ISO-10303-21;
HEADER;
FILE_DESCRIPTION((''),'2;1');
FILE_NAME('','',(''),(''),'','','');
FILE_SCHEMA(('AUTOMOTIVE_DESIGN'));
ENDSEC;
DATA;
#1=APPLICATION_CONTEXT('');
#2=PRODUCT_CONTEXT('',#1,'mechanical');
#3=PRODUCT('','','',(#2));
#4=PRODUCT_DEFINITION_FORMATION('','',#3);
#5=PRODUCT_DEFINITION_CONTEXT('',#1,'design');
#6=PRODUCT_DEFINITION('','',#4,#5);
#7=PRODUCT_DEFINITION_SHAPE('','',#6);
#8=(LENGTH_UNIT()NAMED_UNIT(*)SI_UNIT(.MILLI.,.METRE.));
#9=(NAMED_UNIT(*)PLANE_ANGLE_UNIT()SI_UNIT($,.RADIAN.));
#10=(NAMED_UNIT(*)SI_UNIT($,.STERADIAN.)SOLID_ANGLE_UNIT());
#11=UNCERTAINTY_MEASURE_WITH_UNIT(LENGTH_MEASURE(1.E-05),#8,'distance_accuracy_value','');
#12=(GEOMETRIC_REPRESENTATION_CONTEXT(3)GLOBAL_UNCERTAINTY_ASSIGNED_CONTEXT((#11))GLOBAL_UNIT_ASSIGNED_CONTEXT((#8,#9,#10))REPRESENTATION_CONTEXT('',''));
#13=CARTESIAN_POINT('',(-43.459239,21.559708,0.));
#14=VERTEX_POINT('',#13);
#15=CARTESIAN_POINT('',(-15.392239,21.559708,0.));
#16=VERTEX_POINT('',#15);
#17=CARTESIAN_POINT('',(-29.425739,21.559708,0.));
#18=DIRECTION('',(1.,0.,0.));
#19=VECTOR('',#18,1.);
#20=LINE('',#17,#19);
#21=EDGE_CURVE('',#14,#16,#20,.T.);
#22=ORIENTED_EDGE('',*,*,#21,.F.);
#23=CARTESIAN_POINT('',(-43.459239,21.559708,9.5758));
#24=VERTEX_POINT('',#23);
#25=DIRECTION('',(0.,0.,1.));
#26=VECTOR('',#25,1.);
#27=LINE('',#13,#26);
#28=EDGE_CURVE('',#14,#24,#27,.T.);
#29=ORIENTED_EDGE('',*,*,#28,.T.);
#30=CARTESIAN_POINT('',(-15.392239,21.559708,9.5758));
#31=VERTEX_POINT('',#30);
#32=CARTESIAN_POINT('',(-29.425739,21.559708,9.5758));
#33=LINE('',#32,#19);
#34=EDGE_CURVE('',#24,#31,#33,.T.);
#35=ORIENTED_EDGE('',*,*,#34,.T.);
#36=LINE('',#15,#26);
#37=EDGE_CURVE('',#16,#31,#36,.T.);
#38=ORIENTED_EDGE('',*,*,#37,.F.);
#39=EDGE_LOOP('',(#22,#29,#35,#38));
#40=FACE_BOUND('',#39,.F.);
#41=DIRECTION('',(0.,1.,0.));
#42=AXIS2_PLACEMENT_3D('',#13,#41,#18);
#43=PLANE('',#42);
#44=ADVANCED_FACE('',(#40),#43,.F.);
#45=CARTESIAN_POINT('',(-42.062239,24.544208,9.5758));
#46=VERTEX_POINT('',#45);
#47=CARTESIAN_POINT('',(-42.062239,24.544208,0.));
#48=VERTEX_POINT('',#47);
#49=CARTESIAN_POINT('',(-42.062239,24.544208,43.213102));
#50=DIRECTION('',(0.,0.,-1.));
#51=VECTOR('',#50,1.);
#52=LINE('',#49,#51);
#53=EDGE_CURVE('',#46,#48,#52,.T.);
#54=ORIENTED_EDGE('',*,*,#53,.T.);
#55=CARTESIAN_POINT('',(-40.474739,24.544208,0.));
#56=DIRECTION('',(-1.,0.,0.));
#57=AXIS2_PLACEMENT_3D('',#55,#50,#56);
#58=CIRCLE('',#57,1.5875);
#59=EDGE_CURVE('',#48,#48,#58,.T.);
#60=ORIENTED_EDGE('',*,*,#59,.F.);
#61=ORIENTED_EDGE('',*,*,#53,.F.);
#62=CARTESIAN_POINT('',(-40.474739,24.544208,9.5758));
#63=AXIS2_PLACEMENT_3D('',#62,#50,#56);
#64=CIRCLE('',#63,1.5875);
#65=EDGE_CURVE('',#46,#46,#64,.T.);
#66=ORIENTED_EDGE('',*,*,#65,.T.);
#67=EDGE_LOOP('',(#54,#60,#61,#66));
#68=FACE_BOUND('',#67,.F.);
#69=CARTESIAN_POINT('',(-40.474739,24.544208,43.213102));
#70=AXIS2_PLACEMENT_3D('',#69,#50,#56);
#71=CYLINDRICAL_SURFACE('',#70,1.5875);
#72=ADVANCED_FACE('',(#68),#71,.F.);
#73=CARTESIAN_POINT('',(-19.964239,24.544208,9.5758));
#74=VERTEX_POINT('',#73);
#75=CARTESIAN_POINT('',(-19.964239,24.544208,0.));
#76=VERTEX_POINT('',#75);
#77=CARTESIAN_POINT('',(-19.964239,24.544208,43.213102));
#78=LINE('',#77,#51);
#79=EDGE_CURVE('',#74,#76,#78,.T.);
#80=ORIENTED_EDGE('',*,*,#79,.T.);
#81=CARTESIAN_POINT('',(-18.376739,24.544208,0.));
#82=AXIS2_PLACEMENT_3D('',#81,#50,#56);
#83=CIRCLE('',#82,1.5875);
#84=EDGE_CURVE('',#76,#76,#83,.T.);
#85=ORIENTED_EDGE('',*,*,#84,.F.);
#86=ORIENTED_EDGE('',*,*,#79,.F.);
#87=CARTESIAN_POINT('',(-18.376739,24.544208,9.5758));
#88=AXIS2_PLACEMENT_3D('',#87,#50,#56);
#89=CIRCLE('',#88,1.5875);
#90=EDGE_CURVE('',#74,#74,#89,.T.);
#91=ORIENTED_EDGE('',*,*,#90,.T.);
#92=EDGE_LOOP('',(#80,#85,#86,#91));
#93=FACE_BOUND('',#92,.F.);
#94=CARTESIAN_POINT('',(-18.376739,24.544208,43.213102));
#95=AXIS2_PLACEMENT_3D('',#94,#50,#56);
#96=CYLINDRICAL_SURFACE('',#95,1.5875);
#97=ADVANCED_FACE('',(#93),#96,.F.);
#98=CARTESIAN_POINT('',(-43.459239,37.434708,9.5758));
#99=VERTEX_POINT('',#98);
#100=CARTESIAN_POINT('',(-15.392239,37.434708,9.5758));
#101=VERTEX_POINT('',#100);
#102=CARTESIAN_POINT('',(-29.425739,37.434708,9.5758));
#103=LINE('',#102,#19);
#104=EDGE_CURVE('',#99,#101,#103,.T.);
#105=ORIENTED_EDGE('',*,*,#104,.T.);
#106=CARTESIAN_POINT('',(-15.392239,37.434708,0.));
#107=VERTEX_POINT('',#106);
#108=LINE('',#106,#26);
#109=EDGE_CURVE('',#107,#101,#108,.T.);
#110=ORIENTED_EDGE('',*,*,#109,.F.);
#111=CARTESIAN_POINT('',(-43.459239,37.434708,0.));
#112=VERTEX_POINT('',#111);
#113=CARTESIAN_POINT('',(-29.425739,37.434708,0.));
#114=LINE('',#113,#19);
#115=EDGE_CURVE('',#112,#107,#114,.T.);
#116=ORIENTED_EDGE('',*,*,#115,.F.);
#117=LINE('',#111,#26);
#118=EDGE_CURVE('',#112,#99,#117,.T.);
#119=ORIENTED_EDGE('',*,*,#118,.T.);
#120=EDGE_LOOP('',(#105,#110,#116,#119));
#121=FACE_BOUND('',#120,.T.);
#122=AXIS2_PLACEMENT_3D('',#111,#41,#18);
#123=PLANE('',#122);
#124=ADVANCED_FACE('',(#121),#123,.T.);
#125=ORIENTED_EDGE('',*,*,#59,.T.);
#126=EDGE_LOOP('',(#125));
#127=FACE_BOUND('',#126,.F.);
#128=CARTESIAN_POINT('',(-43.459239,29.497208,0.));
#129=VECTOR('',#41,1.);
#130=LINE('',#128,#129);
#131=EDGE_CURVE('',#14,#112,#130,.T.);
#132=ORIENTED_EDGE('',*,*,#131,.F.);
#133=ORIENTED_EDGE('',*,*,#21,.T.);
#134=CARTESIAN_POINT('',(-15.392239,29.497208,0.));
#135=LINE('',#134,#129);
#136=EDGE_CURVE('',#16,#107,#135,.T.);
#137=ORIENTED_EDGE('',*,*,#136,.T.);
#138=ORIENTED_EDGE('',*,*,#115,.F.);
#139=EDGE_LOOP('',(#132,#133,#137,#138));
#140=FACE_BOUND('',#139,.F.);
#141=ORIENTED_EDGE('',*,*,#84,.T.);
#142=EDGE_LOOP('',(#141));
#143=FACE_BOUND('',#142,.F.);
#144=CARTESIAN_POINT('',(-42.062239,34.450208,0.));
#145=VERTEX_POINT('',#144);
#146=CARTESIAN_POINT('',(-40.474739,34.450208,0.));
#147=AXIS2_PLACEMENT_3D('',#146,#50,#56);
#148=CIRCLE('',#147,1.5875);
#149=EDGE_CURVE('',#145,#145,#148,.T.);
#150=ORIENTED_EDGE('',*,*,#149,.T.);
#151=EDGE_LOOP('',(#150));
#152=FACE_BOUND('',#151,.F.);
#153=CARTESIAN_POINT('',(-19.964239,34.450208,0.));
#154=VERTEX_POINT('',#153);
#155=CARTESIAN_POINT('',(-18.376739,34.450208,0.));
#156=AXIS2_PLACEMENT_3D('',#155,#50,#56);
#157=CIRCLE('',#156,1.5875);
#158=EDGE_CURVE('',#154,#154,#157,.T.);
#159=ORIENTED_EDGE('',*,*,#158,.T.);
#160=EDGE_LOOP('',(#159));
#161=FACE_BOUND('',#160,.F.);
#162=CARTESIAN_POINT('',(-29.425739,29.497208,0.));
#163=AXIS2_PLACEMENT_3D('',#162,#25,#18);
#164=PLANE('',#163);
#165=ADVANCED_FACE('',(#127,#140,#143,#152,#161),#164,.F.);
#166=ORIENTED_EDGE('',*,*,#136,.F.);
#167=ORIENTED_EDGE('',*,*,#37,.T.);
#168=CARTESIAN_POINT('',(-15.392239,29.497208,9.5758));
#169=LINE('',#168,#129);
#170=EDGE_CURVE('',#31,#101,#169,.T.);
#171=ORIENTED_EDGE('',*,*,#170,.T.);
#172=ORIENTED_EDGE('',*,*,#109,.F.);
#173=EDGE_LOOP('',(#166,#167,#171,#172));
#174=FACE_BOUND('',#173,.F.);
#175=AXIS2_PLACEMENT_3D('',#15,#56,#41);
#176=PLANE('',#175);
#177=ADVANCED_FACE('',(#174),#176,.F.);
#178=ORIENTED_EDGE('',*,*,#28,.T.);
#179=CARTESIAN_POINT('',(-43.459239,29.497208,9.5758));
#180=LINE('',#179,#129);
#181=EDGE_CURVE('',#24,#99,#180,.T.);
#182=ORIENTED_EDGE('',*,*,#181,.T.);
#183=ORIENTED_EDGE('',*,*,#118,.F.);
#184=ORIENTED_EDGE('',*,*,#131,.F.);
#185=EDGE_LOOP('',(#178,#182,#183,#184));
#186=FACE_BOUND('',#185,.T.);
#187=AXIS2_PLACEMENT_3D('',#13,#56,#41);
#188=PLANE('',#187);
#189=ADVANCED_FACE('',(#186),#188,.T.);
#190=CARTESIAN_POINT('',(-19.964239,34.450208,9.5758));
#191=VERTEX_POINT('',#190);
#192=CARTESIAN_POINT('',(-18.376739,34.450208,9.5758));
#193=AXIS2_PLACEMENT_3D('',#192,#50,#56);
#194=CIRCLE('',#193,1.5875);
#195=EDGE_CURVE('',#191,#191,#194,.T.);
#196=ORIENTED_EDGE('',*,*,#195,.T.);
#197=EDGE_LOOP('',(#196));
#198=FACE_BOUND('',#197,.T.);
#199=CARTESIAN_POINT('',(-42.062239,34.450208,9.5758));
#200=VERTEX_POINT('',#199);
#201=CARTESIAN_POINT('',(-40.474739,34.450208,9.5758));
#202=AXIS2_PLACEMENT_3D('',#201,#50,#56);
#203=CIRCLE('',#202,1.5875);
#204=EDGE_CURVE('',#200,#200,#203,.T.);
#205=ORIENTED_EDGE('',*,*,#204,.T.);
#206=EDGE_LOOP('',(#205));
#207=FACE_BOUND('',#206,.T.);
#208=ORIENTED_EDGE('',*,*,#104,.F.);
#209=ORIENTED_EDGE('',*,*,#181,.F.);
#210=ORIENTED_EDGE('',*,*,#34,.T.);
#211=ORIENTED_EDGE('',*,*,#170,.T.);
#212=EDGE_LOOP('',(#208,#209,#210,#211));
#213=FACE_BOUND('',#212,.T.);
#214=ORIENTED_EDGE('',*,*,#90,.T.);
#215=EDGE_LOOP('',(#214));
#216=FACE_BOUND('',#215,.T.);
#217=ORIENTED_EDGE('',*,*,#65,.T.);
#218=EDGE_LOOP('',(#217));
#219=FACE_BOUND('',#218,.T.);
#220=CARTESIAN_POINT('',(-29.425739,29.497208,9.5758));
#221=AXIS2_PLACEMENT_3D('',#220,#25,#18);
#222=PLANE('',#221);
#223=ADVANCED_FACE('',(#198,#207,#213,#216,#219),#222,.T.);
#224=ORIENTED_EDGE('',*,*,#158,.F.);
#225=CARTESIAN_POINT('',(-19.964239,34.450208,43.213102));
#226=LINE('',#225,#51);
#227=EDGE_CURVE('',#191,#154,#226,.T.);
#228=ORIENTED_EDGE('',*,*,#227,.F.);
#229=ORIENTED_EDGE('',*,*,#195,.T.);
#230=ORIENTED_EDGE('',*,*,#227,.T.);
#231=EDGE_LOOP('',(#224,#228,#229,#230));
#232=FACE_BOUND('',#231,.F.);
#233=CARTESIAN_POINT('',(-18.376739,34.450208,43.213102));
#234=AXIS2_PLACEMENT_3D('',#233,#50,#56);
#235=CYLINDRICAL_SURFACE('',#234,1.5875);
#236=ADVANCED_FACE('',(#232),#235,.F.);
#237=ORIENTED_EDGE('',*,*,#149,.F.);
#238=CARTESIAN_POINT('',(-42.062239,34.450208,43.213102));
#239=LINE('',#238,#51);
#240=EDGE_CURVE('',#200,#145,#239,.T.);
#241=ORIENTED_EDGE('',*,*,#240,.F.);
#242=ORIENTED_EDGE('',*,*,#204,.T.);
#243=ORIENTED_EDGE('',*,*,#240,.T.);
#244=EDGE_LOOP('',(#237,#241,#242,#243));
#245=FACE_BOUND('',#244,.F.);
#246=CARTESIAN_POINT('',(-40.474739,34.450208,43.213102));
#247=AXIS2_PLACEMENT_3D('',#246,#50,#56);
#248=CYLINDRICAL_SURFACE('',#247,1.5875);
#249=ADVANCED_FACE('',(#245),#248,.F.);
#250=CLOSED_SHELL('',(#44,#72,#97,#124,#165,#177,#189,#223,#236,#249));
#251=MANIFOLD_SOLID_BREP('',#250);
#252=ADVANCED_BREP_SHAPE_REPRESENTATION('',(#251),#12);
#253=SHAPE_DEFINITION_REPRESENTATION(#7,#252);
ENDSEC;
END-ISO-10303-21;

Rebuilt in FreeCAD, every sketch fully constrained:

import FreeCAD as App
import Part
import Sketcher
Q = App.Units.Quantity

doc = App.newDocument("Part")
body = doc.addObject("PartDesign::Body", "Body")

# Sketch on XY plane
sketch1 = doc.addObject("Sketcher::SketchObject", "Sketch")
body.addObject(sketch1)
sketch1.AttachmentSupport = (doc.XY_Plane, [""])
sketch1.MapMode = "FlatFace"
sketch1.addGeometry([
    Part.LineSegment(App.Vector(-43, 37, 0), App.Vector(-43, 22, 0)),
    Part.LineSegment(App.Vector(-43, 22, 0), App.Vector(-15, 22, 0)),
    Part.LineSegment(App.Vector(-15, 22, 0), App.Vector(-15, 37, 0)),
    Part.LineSegment(App.Vector(-15, 37, 0), App.Vector(-43, 37, 0)),
], False)
sketch1.addConstraint([
    Sketcher.Constraint("Coincident", 0, 2, 1, 1),
    Sketcher.Constraint("Coincident", 1, 2, 2, 1),
    Sketcher.Constraint("Coincident", 2, 2, 3, 1),
    Sketcher.Constraint("Coincident", 3, 2, 0, 1),
    Sketcher.Constraint("Vertical", 0),
    Sketcher.Constraint("Horizontal", 1),
    Sketcher.Constraint("Vertical", 2),
    Sketcher.Constraint("Horizontal", 3),
    Sketcher.Constraint("DistanceX", 1, 1, 1, 2, Q("1.105 in")),
    Sketcher.Constraint("DistanceY", 0, 2, 0, 1, Q("0.625 in")),
    Sketcher.Constraint("DistanceX", 0, 2, -1, 1, Q("43.459239 mm")),
    Sketcher.Constraint("DistanceY", -1, 1, 0, 2, Q("21.559708 mm")),
])
pad1 = doc.addObject("PartDesign::Pad", "Pad")
body.addObject(pad1)
pad1.Profile = sketch1
pad1.Length = Q("0.377 in")

# Sketch on XY plane
sketch2 = doc.addObject("Sketcher::SketchObject", "Sketch001")
body.addObject(sketch2)
sketch2.AttachmentSupport = (doc.XY_Plane, [""])
sketch2.MapMode = "FlatFace"
sketch2.AttachmentOffset = App.Placement(App.Vector(0, 0, 0.377 * 25.4), App.Rotation())
sketch2.addGeometry([
    Part.Circle(App.Vector(-40.5, 34.5, 0), App.Vector(0, 0, 1), 1.6),
    Part.Circle(App.Vector(-40.5, 24.5, 0), App.Vector(0, 0, 1), 1.6),
    Part.Circle(App.Vector(-18.4, 24.5, 0), App.Vector(0, 0, 1), 1.6),
    Part.Circle(App.Vector(-18.4, 34.5, 0), App.Vector(0, 0, 1), 1.6),
], False)
sketch2.addConstraint([
    Sketcher.Constraint("Equal", 0, 1),
    Sketcher.Constraint("Equal", 1, 2),
    Sketcher.Constraint("Equal", 2, 3),
    Sketcher.Constraint("Horizontal", 1, 3, 2, 3),
    Sketcher.Constraint("Horizontal", 0, 3, 3, 3),
    Sketcher.Constraint("Vertical", 0, 3, 1, 3),
    Sketcher.Constraint("Vertical", 2, 3, 3, 3),
    Sketcher.Constraint("Diameter", 0, Q("0.125 in")),
    Sketcher.Constraint("DistanceY", 1, 3, 0, 3, Q("0.39 in")),
    Sketcher.Constraint("DistanceX", 1, 3, 2, 3, Q("0.87 in")),
    Sketcher.Constraint("DistanceX", 0, 3, -1, 1, Q("40.474739 mm")),
    Sketcher.Constraint("DistanceY", -1, 1, 0, 3, Q("34.450208 mm")),
])
doc.recompute()
hole = doc.addObject("PartDesign::Hole", "Hole")
body.addObject(hole)
hole.Profile = sketch2
hole.ThreadType = "None"
hole.Diameter = Q("0.125 in")
hole.DepthType = "ThroughAll"

doc.recompute()
